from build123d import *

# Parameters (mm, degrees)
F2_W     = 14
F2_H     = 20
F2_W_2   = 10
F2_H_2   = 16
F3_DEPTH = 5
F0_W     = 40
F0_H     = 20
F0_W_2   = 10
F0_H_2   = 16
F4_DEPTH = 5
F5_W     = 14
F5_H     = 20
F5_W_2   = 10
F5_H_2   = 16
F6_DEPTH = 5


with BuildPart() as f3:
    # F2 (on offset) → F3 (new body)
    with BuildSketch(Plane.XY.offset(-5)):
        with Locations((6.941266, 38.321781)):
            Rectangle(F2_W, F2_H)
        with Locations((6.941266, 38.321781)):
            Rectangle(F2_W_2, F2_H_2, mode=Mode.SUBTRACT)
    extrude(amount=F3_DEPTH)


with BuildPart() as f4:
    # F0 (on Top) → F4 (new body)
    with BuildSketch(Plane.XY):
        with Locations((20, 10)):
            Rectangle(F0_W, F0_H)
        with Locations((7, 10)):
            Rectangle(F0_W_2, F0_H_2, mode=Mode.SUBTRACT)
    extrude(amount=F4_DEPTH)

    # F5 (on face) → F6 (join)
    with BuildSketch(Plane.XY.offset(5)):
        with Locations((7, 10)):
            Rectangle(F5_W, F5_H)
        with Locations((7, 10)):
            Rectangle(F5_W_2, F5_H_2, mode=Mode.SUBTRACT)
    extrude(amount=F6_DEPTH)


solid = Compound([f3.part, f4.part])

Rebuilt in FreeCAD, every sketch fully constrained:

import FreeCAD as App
import Part
import Sketcher

V = App.Vector


def add_polygon(sketch, points):
    """Adds a closed chain of lines whose ends are joined by coincident constraints."""
    first, n = sketch.GeometryCount, len(points)
    for a, b in zip(points, points[1:] + points[:1]):
        sketch.addGeometry(Part.LineSegment(App.Vector(*a, 0), App.Vector(*b, 0)), False)
    for i in range(n):
        sketch.addConstraint(Sketcher.Constraint("Coincident", first + i, 2, first + (i + 1) % n, 1))

doc = App.newDocument("Part")
body = doc.addObject("PartDesign::Body", "Body")

sketch1 = body.newObject("Sketcher::SketchObject", "Sketch")
sketch1.AttachmentSupport = (doc.getObject("XY_Plane"), [""])
sketch1.MapMode = "FlatFace"
sketch1.AttachmentOffset = App.Placement(V(0, 0, -5), App.Rotation())
add_polygon(sketch1, [(-0.058734, 48.321781), (-0.058734, 28.321781), (13.941266, 28.321781), (13.941266, 48.321781)])
add_polygon(sketch1, [(11.941266, 30.321781), (1.941266, 30.321781), (1.941266, 46.321781), (11.941266, 46.321781)])
sketch1.addConstraint([
    Sketcher.Constraint("Vertical", 0),
    Sketcher.Constraint("Horizontal", 1),
    Sketcher.Constraint("Vertical", 2),
    Sketcher.Constraint("Horizontal", 3),
    Sketcher.Constraint("Horizontal", 4),
    Sketcher.Constraint("Vertical", 5),
    Sketcher.Constraint("Horizontal", 6),
    Sketcher.Constraint("Vertical", 7),
    Sketcher.Constraint("DistanceX", 1, 1, 1, 2, 14.0),
    Sketcher.Constraint("DistanceX", 4, 2, 4, 1, 10.0),
    Sketcher.Constraint("DistanceY", 0, 2, 0, 1, 20.0),
    Sketcher.Constraint("DistanceY", 5, 1, 5, 2, 16.0),
    Sketcher.Constraint("DistanceX", 0, 2, 4, 2, 2.0),
    Sketcher.Constraint("DistanceY", 0, 2, 4, 2, 2.0),
    Sketcher.Constraint("DistanceY", -1, 1, 0, 2, 28.321781),
    Sketcher.Constraint("DistanceX", 0, 2, -1, 1, 0.058734),
])
pad1 = body.newObject("PartDesign::Pad", "Pad")
pad1.Profile = sketch1
pad1.Length = 5
body2 = doc.addObject("PartDesign::Body", "Body001")

sketch2 = body2.newObject("Sketcher::SketchObject", "Sketch001")
sketch2.AttachmentSupport = (doc.getObject("XY_Plane001"), [""])
sketch2.MapMode = "FlatFace"
add_polygon(sketch2, [(0, 20), (0, 0), (40, 0), (40, 20)])
add_polygon(sketch2, [(12, 2), (2, 2), (2, 18), (12, 18)])
sketch2.addConstraint([
    Sketcher.Constraint("Vertical", 0),
    Sketcher.Constraint("Horizontal", 1),
    Sketcher.Constraint("Vertical", 2),
    Sketcher.Constraint("Horizontal", 3),
    Sketcher.Constraint("Horizontal", 4),
    Sketcher.Constraint("Vertical", 5),
    Sketcher.Constraint("Horizontal", 6),
    Sketcher.Constraint("Vertical", 7),
    Sketcher.Constraint("Coincident", 0, 2, -1, 1),
    Sketcher.Constraint("DistanceX", 1, 1, 1, 2, 40.0),
    Sketcher.Constraint("DistanceX", 4, 2, 4, 1, 10.0),
    Sketcher.Constraint("DistanceY", 0, 2, 0, 1, 20.0),
    Sketcher.Constraint("DistanceY", 5, 1, 5, 2, 16.0),
    Sketcher.Constraint("DistanceX", -1, 1, 4, 2, 2.0),
    Sketcher.Constraint("DistanceY", -1, 1, 4, 2, 2.0),
])
pad2 = body2.newObject("PartDesign::Pad", "Pad001")
pad2.Profile = sketch2
pad2.Length = 5

sketch3 = body2.newObject("Sketcher::SketchObject", "Sketch002")
sketch3.AttachmentSupport = (doc.getObject("XY_Plane001"), [""])
sketch3.MapMode = "FlatFace"
sketch3.AttachmentOffset = App.Placement(V(0, 0, 5), App.Rotation())
add_polygon(sketch3, [(0, 20), (0, 0), (14, 0), (14, 20)])
add_polygon(sketch3, [(12, 2), (2, 2), (2, 18), (12, 18)])
sketch3.addConstraint([
    Sketcher.Constraint("Vertical", 0),
    Sketcher.Constraint("Horizontal", 1),
    Sketcher.Constraint("Vertical", 2),
    Sketcher.Constraint("Horizontal", 3),
    Sketcher.Constraint("Horizontal", 4),
    Sketcher.Constraint("Vertical", 5),
    Sketcher.Constraint("Horizontal", 6),
    Sketcher.Constraint("Vertical", 7),
    Sketcher.Constraint("Coincident", 0, 2, -1, 1),
    Sketcher.Constraint("DistanceX", 1, 1, 1, 2, 14.0),
    Sketcher.Constraint("DistanceX", 4, 2, 4, 1, 10.0),
    Sketcher.Constraint("DistanceY", 0, 2, 0, 1, 20.0),
    Sketcher.Constraint("DistanceY", 5, 1, 5, 2, 16.0),
    Sketcher.Constraint("DistanceX", -1, 1, 4, 2, 2.0),
    Sketcher.Constraint("DistanceY", -1, 1, 4, 2, 2.0),
])
pad3 = body2.newObject("PartDesign::Pad", "Pad002")
pad3.Profile = sketch3
pad3.Length = 5

doc.recompute()
